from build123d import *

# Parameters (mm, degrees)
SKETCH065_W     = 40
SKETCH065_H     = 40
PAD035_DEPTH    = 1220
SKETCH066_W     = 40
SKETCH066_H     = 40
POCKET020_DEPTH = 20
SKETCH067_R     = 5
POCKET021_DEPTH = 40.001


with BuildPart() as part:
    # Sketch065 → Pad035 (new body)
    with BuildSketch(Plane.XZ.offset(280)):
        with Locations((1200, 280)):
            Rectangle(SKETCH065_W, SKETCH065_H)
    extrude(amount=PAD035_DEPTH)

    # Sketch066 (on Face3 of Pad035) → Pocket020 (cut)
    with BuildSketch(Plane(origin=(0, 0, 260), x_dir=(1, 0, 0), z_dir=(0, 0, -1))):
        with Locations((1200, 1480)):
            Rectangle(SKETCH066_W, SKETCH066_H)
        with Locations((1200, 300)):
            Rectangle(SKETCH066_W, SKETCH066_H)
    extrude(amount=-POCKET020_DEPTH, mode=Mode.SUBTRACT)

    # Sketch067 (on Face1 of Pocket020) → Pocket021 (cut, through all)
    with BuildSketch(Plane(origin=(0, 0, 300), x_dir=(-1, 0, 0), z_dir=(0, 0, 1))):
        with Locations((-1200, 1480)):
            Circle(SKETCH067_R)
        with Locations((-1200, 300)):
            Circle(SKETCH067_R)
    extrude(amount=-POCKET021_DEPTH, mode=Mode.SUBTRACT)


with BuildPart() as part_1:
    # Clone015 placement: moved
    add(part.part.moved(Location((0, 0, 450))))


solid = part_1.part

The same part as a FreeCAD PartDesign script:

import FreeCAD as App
import Part
import Sketcher

V = App.Vector
Q = App.Units.Quantity

doc = App.newDocument("Part")
params = doc.addObject("Spreadsheet::Sheet", "Params")
for row, (alias, value) in enumerate([
    ("sketch1_width", "40 mm"),
    ("pad1_length", "1220 mm"),
    ("sketch2_width", "40 mm"),
    ("pocket1_length", "20 mm"),
    ("sketch3_diameter", "10 mm"),
], start=1):
    params.set(f"A{row}", alias)
    params.set(f"B{row}", "=" + value)
    params.setAlias(f"B{row}", alias)

body = doc.addObject("PartDesign::Body", "Body")

# Sketch on XZ plane
sketch1 = body.newObject("Sketcher::SketchObject", "Sketch")
sketch1.AttachmentSupport = (doc.getObject("XZ_Plane"), [""])
sketch1.MapMode = "FlatFace"
sketch1.AttachmentOffset = App.Placement(V(0, 0, 280), App.Rotation())
sketch1.addGeometry(Part.LineSegment(V(1180, 300, 0), V(1180, 260, 0)), False)
sketch1.addGeometry(Part.LineSegment(V(1180, 260, 0), V(1220, 260, 0)), False)
sketch1.addGeometry(Part.LineSegment(V(1220, 260, 0), V(1220, 300, 0)), False)
sketch1.addGeometry(Part.LineSegment(V(1220, 300, 0), V(1180, 300, 0)), False)
sketch1.addConstraint(Sketcher.Constraint("Coincident", 0, 2, 1, 1))
sketch1.addConstraint(Sketcher.Constraint("Coincident", 1, 2, 2, 1))
sketch1.addConstraint(Sketcher.Constraint("Coincident", 2, 2, 3, 1))
sketch1.addConstraint(Sketcher.Constraint("Coincident", 3, 2, 0, 1))
sketch1.addConstraint(Sketcher.Constraint("Vertical", 0))
sketch1.addConstraint(Sketcher.Constraint("Horizontal", 1))
sketch1.addConstraint(Sketcher.Constraint("Vertical", 2))
sketch1.addConstraint(Sketcher.Constraint("Horizontal", 3))
sketch1.addConstraint(Sketcher.Constraint("Equal", 3, 0))
sketch1.addConstraint(Sketcher.Constraint("DistanceX", 1, 1, 1, 2, Q("40 mm")))
sketch1.addConstraint(Sketcher.Constraint("DistanceX", -1, 1, 0, 2, Q("1180 mm")))
sketch1.addConstraint(Sketcher.Constraint("DistanceY", -1, 1, 0, 2, Q("260 mm")))
sketch1.setExpression("Constraints[9]", "Params.sketch1_width")
pad1 = body.newObject("PartDesign::Pad", "Pad")
pad1.Profile = sketch1
pad1.setExpression("Length", "Params.pad1_length")

# Sketch on XY plane
sketch2 = body.newObject("Sketcher::SketchObject", "Sketch001")
sketch2.AttachmentSupport = (doc.getObject("XY_Plane"), [""])
sketch2.MapMode = "FlatFace"
sketch2.AttachmentOffset = App.Placement(V(0, 0, 260), App.Rotation())
sketch2.addGeometry(Part.LineSegment(V(1180, -1500, 0), V(1180, -1460, 0)), False)
sketch2.addGeometry(Part.LineSegment(V(1180, -1460, 0), V(1220, -1460, 0)), False)
sketch2.addGeometry(Part.LineSegment(V(1220, -1460, 0), V(1220, -1500, 0)), False)
sketch2.addGeometry(Part.LineSegment(V(1220, -1500, 0), V(1180, -1500, 0)), False)
sketch2.addGeometry(Part.LineSegment(V(1180, -320, 0), V(1180, -280, 0)), False)
sketch2.addGeometry(Part.LineSegment(V(1180, -280, 0), V(1220, -280, 0)), False)
sketch2.addGeometry(Part.LineSegment(V(1220, -280, 0), V(1220, -320, 0)), False)
sketch2.addGeometry(Part.LineSegment(V(1220, -320, 0), V(1180, -320, 0)), False)
sketch2.addConstraint(Sketcher.Constraint("Coincident", 0, 2, 1, 1))
sketch2.addConstraint(Sketcher.Constraint("Coincident", 1, 2, 2, 1))
sketch2.addConstraint(Sketcher.Constraint("Coincident", 2, 2, 3, 1))
sketch2.addConstraint(Sketcher.Constraint("Coincident", 3, 2, 0, 1))
sketch2.addConstraint(Sketcher.Constraint("Coincident", 4, 2, 5, 1))
sketch2.addConstraint(Sketcher.Constraint("Coincident", 5, 2, 6, 1))
sketch2.addConstraint(Sketcher.Constraint("Coincident", 6, 2, 7, 1))
sketch2.addConstraint(Sketcher.Constraint("Coincident", 7, 2, 4, 1))
sketch2.addConstraint(Sketcher.Constraint("Vertical", 0))
sketch2.addConstraint(Sketcher.Constraint("Horizontal", 1))
sketch2.addConstraint(Sketcher.Constraint("Vertical", 2))
sketch2.addConstraint(Sketcher.Constraint("Horizontal", 3))
sketch2.addConstraint(Sketcher.Constraint("Vertical", 4))
sketch2.addConstraint(Sketcher.Constraint("Horizontal", 5))
sketch2.addConstraint(Sketcher.Constraint("Vertical", 6))
sketch2.addConstraint(Sketcher.Constraint("Horizontal", 7))
sketch2.addConstraint(Sketcher.Constraint("Vertical", 3, 2, 4, 2))
sketch2.addConstraint(Sketcher.Constraint("Vertical", 2, 2, 5, 2))
sketch2.addConstraint(Sketcher.Constraint("Equal", 7, 0))
sketch2.addConstraint(Sketcher.Constraint("Equal", 2, 4))
sketch2.addConstraint(Sketcher.Constraint("DistanceX", 1, 1, 1, 2, Q("40 mm")))
sketch2.addConstraint(Sketcher.Constraint("DistanceX", -1, 1, 0, 2, Q("1180 mm")))
sketch2.addConstraint(Sketcher.Constraint("DistanceY", 0, 2, -1, 1, Q("1460 mm")))
sketch2.addConstraint(Sketcher.Constraint("DistanceY", 4, 2, -1, 1, Q("280 mm")))
sketch2.setExpression("Constraints[20]", "Params.sketch2_width")
pocket1 = body.newObject("PartDesign::Pocket", "Pocket")
pocket1.Profile = sketch2
pocket1.setExpression("Length", "Params.pocket1_length")
pocket1.Reversed = True

# Sketch on XY plane
sketch3 = body.newObject("Sketcher::SketchObject", "Sketch002")
sketch3.AttachmentSupport = (doc.getObject("XY_Plane"), [""])
sketch3.MapMode = "FlatFace"
sketch3.AttachmentOffset = App.Placement(V(0, 0, 300), App.Rotation())
sketch3.addGeometry(Part.Circle(V(1200, -1480, 0), V(0, 0, 1), 5), False)
sketch3.addGeometry(Part.Circle(V(1200, -300, 0), V(0, 0, 1), 5), False)
sketch3.addConstraint(Sketcher.Constraint("Equal", 0, 1))
sketch3.addConstraint(Sketcher.Constraint("Vertical", 0, 3, 1, 3))
sketch3.addConstraint(Sketcher.Constraint("Diameter", 0, Q("10 mm")))
sketch3.addConstraint(Sketcher.Constraint("DistanceX", -1, 1, 0, 3, Q("1200 mm")))
sketch3.addConstraint(Sketcher.Constraint("DistanceY", 0, 3, -1, 1, Q("1480 mm")))
sketch3.addConstraint(Sketcher.Constraint("DistanceY", 1, 3, -1, 1, Q("300 mm")))
sketch3.setExpression("Constraints[2]", "Params.sketch3_diameter")
pocket2 = body.newObject("PartDesign::Pocket", "Pocket001")
pocket2.Profile = sketch3
pocket2.Type = "ThroughAll"
body2 = doc.addObject("PartDesign::Body", "Body001")
doc.recompute()

body.Placement = App.Placement(V(0, 0, 450), App.Rotation(V(0, 0, 1), 0))
boolean = body2.newObject("PartDesign::Boolean", "Boolean")
boolean.Type = "Fuse"
boolean.addObjects([body])

doc.recompute()
